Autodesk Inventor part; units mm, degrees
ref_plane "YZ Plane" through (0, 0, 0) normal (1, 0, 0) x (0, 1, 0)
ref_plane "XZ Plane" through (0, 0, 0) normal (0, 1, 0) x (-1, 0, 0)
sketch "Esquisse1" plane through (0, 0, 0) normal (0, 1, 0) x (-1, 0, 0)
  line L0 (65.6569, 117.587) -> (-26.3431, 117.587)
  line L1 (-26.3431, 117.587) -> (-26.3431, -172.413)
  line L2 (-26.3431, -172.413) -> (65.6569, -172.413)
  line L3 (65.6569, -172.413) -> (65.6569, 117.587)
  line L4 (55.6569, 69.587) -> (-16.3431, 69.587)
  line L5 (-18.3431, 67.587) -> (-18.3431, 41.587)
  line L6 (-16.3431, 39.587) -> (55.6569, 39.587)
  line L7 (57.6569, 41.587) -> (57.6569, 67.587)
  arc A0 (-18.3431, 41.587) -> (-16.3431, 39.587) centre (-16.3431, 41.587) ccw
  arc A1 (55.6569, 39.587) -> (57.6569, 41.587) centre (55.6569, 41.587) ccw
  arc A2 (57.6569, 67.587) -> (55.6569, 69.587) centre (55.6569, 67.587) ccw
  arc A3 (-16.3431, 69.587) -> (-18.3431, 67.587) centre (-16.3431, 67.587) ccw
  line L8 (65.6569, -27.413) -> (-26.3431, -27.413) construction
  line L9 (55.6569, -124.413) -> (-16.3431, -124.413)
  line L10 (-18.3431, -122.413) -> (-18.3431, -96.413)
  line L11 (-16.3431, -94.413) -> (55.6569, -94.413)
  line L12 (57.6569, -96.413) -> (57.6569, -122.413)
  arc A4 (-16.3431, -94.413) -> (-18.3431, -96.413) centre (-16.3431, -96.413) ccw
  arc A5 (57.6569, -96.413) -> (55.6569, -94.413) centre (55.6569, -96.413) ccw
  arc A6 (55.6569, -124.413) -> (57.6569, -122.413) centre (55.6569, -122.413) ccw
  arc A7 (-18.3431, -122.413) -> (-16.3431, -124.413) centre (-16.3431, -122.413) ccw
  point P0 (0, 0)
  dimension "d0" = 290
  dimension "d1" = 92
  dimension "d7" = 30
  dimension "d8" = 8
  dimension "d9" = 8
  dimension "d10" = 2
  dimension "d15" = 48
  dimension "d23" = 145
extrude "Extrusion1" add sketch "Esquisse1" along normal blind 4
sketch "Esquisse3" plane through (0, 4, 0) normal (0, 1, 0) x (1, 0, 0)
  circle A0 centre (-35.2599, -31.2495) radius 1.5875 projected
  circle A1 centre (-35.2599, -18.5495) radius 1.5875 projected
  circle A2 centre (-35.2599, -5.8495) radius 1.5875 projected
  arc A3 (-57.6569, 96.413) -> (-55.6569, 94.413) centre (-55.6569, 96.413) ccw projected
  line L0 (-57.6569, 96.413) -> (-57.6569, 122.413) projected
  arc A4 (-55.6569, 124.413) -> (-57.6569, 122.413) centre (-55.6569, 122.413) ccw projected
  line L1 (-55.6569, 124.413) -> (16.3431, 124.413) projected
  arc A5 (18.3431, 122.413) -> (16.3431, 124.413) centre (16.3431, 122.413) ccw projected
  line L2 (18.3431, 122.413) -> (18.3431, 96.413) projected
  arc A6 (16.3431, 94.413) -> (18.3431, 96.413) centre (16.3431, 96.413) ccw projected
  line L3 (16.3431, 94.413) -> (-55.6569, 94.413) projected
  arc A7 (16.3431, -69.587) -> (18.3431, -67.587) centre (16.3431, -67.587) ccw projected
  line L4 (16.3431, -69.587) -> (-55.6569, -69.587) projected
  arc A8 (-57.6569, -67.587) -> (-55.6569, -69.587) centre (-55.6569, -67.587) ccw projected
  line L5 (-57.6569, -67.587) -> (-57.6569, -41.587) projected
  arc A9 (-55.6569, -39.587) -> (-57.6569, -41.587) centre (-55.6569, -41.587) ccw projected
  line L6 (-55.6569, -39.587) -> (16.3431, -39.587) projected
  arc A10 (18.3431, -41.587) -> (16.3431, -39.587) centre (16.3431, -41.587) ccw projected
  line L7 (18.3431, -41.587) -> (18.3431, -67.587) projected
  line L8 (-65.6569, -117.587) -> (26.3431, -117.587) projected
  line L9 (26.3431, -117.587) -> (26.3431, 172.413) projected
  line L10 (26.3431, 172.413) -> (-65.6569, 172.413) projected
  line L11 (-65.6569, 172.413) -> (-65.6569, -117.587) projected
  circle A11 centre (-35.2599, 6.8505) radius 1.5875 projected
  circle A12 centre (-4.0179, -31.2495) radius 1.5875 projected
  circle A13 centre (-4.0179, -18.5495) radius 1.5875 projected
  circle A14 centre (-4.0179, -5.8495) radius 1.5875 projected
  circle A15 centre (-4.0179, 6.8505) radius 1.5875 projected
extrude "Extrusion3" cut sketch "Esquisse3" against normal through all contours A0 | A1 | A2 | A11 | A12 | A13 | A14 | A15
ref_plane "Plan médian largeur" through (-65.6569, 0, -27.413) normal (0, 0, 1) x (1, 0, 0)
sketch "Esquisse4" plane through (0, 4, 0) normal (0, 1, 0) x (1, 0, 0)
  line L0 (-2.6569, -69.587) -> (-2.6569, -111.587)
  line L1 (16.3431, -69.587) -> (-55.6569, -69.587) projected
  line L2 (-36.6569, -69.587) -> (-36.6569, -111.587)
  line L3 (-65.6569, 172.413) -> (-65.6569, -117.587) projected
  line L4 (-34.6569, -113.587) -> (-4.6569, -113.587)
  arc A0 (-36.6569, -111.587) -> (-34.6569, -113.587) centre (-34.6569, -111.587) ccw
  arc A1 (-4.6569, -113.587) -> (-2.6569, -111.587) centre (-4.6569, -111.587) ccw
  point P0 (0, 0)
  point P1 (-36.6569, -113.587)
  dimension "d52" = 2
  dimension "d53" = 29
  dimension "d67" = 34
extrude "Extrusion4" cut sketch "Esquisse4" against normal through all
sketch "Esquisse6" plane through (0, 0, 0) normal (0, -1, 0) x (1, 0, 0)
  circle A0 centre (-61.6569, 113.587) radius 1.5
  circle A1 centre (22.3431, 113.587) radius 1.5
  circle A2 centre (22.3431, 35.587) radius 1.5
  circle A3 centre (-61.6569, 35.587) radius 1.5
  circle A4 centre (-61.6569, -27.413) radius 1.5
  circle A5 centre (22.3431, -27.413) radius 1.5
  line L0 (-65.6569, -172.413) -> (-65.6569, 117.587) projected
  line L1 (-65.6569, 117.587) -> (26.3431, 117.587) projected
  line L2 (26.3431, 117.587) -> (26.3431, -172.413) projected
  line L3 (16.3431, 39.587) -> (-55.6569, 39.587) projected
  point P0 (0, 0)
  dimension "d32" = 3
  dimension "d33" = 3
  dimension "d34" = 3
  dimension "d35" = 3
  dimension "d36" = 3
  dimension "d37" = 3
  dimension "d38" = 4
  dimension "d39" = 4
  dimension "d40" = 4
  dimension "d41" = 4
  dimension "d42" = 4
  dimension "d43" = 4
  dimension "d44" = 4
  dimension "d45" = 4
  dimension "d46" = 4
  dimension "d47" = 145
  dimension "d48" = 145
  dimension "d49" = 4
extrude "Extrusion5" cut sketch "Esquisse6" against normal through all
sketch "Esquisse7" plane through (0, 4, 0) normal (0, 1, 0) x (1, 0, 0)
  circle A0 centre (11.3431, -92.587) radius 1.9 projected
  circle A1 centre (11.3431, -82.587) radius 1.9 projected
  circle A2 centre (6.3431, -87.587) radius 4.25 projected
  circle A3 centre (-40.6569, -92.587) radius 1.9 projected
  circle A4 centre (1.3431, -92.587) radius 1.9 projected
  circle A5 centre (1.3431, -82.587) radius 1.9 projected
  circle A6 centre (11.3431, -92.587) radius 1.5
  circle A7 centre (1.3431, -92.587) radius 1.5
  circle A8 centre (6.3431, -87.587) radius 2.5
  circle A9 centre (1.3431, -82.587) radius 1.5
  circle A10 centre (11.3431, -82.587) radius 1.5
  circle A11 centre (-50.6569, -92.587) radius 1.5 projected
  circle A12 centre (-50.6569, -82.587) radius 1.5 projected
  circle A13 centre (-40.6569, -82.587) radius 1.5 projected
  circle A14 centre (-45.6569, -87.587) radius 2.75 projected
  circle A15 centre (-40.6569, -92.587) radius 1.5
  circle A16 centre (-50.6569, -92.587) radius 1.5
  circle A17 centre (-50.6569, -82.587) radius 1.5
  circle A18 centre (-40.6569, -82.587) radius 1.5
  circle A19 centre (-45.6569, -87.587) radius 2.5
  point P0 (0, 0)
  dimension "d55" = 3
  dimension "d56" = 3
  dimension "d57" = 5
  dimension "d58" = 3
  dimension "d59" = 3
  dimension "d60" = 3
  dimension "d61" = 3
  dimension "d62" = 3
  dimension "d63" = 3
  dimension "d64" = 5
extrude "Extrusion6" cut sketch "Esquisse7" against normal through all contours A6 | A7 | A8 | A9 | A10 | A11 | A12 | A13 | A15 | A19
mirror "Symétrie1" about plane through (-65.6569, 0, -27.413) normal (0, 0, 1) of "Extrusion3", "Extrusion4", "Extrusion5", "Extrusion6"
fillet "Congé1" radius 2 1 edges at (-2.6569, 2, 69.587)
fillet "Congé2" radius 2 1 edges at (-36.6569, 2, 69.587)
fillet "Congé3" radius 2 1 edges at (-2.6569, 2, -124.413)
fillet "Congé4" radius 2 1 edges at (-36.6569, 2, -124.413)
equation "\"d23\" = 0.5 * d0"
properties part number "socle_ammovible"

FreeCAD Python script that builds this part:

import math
import FreeCAD as App
import Part
import Sketcher
from FreeCAD import Vector
Q = App.Units.Quantity


def edges_at(feature, points):
    """Names of the edges that pass closest to the given points."""
    edges = feature.Shape.Edges
    near = lambda p: min(range(len(edges)), key=lambda i: edges[i].distToShape(Part.Vertex(*p))[0])
    return sorted({f"Edge{near(p) + 1}" for p in points})


def add_polygon(sketch, points):
    """Adds a closed chain of lines whose ends are joined by coincident constraints."""
    first, n = sketch.GeometryCount, len(points)
    for a, b in zip(points, points[1:] + points[:1]):
        sketch.addGeometry(Part.LineSegment(App.Vector(*a, 0), App.Vector(*b, 0)), False)
    for i in range(n):
        sketch.addConstraint(Sketcher.Constraint("Coincident", first + i, 2, first + (i + 1) % n, 1))

doc = App.newDocument("Part")
body = doc.addObject("PartDesign::Body", "Body")

sketch1 = body.newObject("Sketcher::SketchObject", "Sketch")
sketch1.AttachmentSupport = (doc.getObject("XZ_Plane"), [""])
sketch1.MapMode = "FlatFace"
add_polygon(sketch1, [(-65.6569, -172.413), (-65.6569, 117.587), (26.3431, 117.587), (26.3431, -172.413)])
sketch1.addGeometry(Part.ArcOfCircle(Part.Circle(Vector(-55.6569, -122.413, 0), Vector(0, 0, 1), 2), math.radians(180), math.radians(270)), False)
sketch1.addGeometry(Part.LineSegment(Vector(-55.6569, -124.413, 0), Vector(16.3431, -124.413, 0)), False)
sketch1.addGeometry(Part.ArcOfCircle(Part.Circle(Vector(16.3431, -122.413, 0), Vector(0, 0, 1), 2), math.radians(-90), math.radians(0)), False)
sketch1.addGeometry(Part.LineSegment(Vector(18.3431, -122.413, 0), Vector(18.3431, -96.413, 0)), False)
sketch1.addGeometry(Part.ArcOfCircle(Part.Circle(Vector(16.3431, -96.413, 0), Vector(0, 0, 1), 2), math.radians(0), math.radians(90)), False)
sketch1.addGeometry(Part.LineSegment(Vector(16.3431, -94.413, 0), Vector(-55.6569, -94.413, 0)), False)
sketch1.addGeometry(Part.ArcOfCircle(Part.Circle(Vector(-55.6569, -96.413, 0), Vector(0, 0, 1), 2), math.radians(90), math.radians(180)), False)
sketch1.addGeometry(Part.LineSegment(Vector(-57.6569, -96.413, 0), Vector(-57.6569, -122.413, 0)), False)
sketch1.addGeometry(Part.LineSegment(Vector(16.3431, 69.587, 0), Vector(-55.6569, 69.587, 0)), False)
sketch1.addGeometry(Part.ArcOfCircle(Part.Circle(Vector(-55.6569, 67.587, 0), Vector(0, 0, 1), 2), math.radians(90), math.radians(180)), False)
sketch1.addGeometry(Part.LineSegment(Vector(-57.6569, 67.587, 0), Vector(-57.6569, 41.587, 0)), False)
sketch1.addGeometry(Part.ArcOfCircle(Part.Circle(Vector(-55.6569, 41.587, 0), Vector(0, 0, 1), 2), math.radians(180), math.radians(270)), False)
sketch1.addGeometry(Part.LineSegment(Vector(-55.6569, 39.587, 0), Vector(16.3431, 39.587, 0)), False)
sketch1.addGeometry(Part.ArcOfCircle(Part.Circle(Vector(16.3431, 41.587, 0), Vector(0, 0, 1), 2), math.radians(-90), math.radians(0)), False)
sketch1.addGeometry(Part.LineSegment(Vector(18.3431, 41.587, 0), Vector(18.3431, 67.587, 0)), False)
sketch1.addGeometry(Part.ArcOfCircle(Part.Circle(Vector(16.3431, 67.587, 0), Vector(0, 0, 1), 2), math.radians(0), math.radians(90)), False)
sketch1.addConstraint(Sketcher.Constraint("Tangent", 4, 2, 5, 1))
sketch1.addConstraint(Sketcher.Constraint("Tangent", 5, 2, 6, 1))
sketch1.addConstraint(Sketcher.Constraint("Tangent", 6, 2, 7, 1))
sketch1.addConstraint(Sketcher.Constraint("Tangent", 7, 2, 8, 1))
sketch1.addConstraint(Sketcher.Constraint("Tangent", 8, 2, 9, 1))
sketch1.addConstraint(Sketcher.Constraint("Tangent", 9, 2, 10, 1))
sketch1.addConstraint(Sketcher.Constraint("Tangent", 10, 2, 11, 1))
sketch1.addConstraint(Sketcher.Constraint("Tangent", 11, 2, 4, 1))
sketch1.addConstraint(Sketcher.Constraint("Tangent", 12, 2, 13, 1))
sketch1.addConstraint(Sketcher.Constraint("Tangent", 13, 2, 14, 1))
sketch1.addConstraint(Sketcher.Constraint("Tangent", 14, 2, 15, 1))
sketch1.addConstraint(Sketcher.Constraint("Tangent", 15, 2, 16, 1))
sketch1.addConstraint(Sketcher.Constraint("Tangent", 16, 2, 17, 1))
sketch1.addConstraint(Sketcher.Constraint("Tangent", 17, 2, 18, 1))
sketch1.addConstraint(Sketcher.Constraint("Tangent", 18, 2, 19, 1))
sketch1.addConstraint(Sketcher.Constraint("Tangent", 19, 2, 12, 1))
sketch1.addConstraint(Sketcher.Constraint("Vertical", 0))
sketch1.addConstraint(Sketcher.Constraint("Horizontal", 1))
sketch1.addConstraint(Sketcher.Constraint("Vertical", 2))
sketch1.addConstraint(Sketcher.Constraint("Horizontal", 3))
sketch1.addConstraint(Sketcher.Constraint("Horizontal", 5))
sketch1.addConstraint(Sketcher.Constraint("Vertical", 7))
sketch1.addConstraint(Sketcher.Constraint("Horizontal", 9))
sketch1.addConstraint(Sketcher.Constraint("Vertical", 11))
sketch1.addConstraint(Sketcher.Constraint("Horizontal", 12))
sketch1.addConstraint(Sketcher.Constraint("Vertical", 14))
sketch1.addConstraint(Sketcher.Constraint("Horizontal", 16))
sketch1.addConstraint(Sketcher.Constraint("Vertical", 18))
sketch1.addConstraint(Sketcher.Constraint("Equal", 4, 6))
sketch1.addConstraint(Sketcher.Constraint("Equal", 6, 8))
sketch1.addConstraint(Sketcher.Constraint("Equal", 8, 10))
sketch1.addConstraint(Sketcher.Constraint("Equal", 10, 13))
sketch1.addConstraint(Sketcher.Constraint("Equal", 13, 15))
sketch1.addConstraint(Sketcher.Constraint("Equal", 15, 17))
sketch1.addConstraint(Sketcher.Constraint("Equal", 17, 19))
sketch1.addConstraint(Sketcher.Constraint("Vertical", 10, 3, 13, 3))
sketch1.addConstraint(Sketcher.Constraint("Vertical", 8, 3, 17, 3))
sketch1.addConstraint(Sketcher.Constraint("Equal", 11, 14))
sketch1.addConstraint(Sketcher.Constraint("Radius", 4, Q("2 mm")))
sketch1.addConstraint(Sketcher.Constraint("DistanceX", 1, 1, 1, 2, Q("92 mm")))
sketch1.addConstraint(Sketcher.Constraint("DistanceY", 0, 1, 0, 2, Q("290 mm")))
sketch1.addConstraint(Sketcher.Constraint("DistanceY", 3, 2, 4, 2, Q("48 mm")))
sketch1.addConstraint(Sketcher.Constraint("DistanceX", 6, 2, 2, 2, Q("8 mm")))
sketch1.addConstraint(Sketcher.Constraint("DistanceY", 5, 2, 8, 2, Q("30 mm")))
sketch1.addConstraint(Sketcher.Constraint("DistanceY", 12, 2, 0, 2, Q("48 mm")))
sketch1.addConstraint(Sketcher.Constraint("DistanceX", 0, 2, 13, 2, Q("8 mm")))
sketch1.addConstraint(Sketcher.Constraint("DistanceX", 4, 3, -1, 1, Q("55.657 mm")))
sketch1.addConstraint(Sketcher.Constraint("DistanceY", 4, 3, -1, 1, Q("122.413 mm")))
pad1 = body.newObject("PartDesign::Pad", "Pad")
pad1.Profile = sketch1
pad1.Length = 4
pad1.Reversed = True

sketch2 = body.newObject("Sketcher::SketchObject", "Sketch001")
sketch2.AttachmentSupport = (doc.getObject("XZ_Plane"), [""])
sketch2.MapMode = "FlatFace"
sketch2.AttachmentOffset = App.Placement(Vector(0, 0, -4), App.Rotation())
sketch2.addGeometry(Part.Circle(Vector(-35.2599, 31.2495, 0), Vector(0, 0, 1), 1.5875), False)
sketch2.addGeometry(Part.Circle(Vector(-35.2599, 18.5495, 0), Vector(0, 0, 1), 1.5875), False)
sketch2.addGeometry(Part.Circle(Vector(-35.2599, 5.8495, 0), Vector(0, 0, 1), 1.5875), False)
sketch2.addGeometry(Part.Circle(Vector(-35.2599, -6.8505, 0), Vector(0, 0, 1), 1.5875), False)
sketch2.addGeometry(Part.Circle(Vector(-4.0179, 31.2495, 0), Vector(0, 0, 1), 1.5875), False)
sketch2.addGeometry(Part.Circle(Vector(-4.0179, 18.5495, 0), Vector(0, 0, 1), 1.5875), False)
sketch2.addGeometry(Part.Circle(Vector(-4.0179, 5.8495, 0), Vector(0, 0, 1), 1.5875), False)
sketch2.addGeometry(Part.Circle(Vector(-4.0179, -6.8505, 0), Vector(0, 0, 1), 1.5875), False)
sketch2.addConstraint(Sketcher.Constraint("Equal", 0, 1))
sketch2.addConstraint(Sketcher.Constraint("Equal", 1, 2))
sketch2.addConstraint(Sketcher.Constraint("Equal", 2, 3))
sketch2.addConstraint(Sketcher.Constraint("Equal", 3, 4))
sketch2.addConstraint(Sketcher.Constraint("Equal", 4, 5))
sketch2.addConstraint(Sketcher.Constraint("Equal", 5, 6))
sketch2.addConstraint(Sketcher.Constraint("Equal", 6, 7))
sketch2.addConstraint(Sketcher.Constraint("Horizontal", 0, 3, 4, 3))
sketch2.addConstraint(Sketcher.Constraint("Horizontal", 1, 3, 5, 3))
sketch2.addConstraint(Sketcher.Constraint("Horizontal", 2, 3, 6, 3))
sketch2.addConstraint(Sketcher.Constraint("Horizontal", 3, 3, 7, 3))
sketch2.addConstraint(Sketcher.Constraint("Vertical", 0, 3, 1, 3))
sketch2.addConstraint(Sketcher.Constraint("Vertical", 1, 3, 2, 3))
sketch2.addConstraint(Sketcher.Constraint("Vertical", 2, 3, 3, 3))
sketch2.addConstraint(Sketcher.Constraint("Vertical", 4, 3, 5, 3))
sketch2.addConstraint(Sketcher.Constraint("Vertical", 5, 3, 6, 3))
sketch2.addConstraint(Sketcher.Constraint("Vertical", 6, 3, 7, 3))
sketch2.addConstraint(Sketcher.Constraint("Diameter", 0, Q("3.175 mm")))
sketch2.addConstraint(Sketcher.Constraint("DistanceY", 1, 3, 0, 3, Q("12.7 mm")))
sketch2.addConstraint(Sketcher.Constraint("DistanceY", 2, 3, 1, 3, Q("12.7 mm")))
sketch2.addConstraint(Sketcher.Constraint("DistanceY", 3, 3, 2, 3, Q("12.7 mm")))
sketch2.addConstraint(Sketcher.Constraint("DistanceX", 0, 3, -1, 1, Q("35.26 mm")))
sketch2.addConstraint(Sketcher.Constraint("DistanceX", 4, 3, -1, 1, Q("4.018 mm")))
sketch2.addConstraint(Sketcher.Constraint("DistanceY", -1, 1, 0, 3, Q("31.2495 mm")))
pocket1 = body.newObject("PartDesign::Pocket", "Pocket")
pocket1.Profile = sketch2
pocket1.Type = "ThroughAll"
pocket1.Reversed = True

sketch3 = body.newObject("Sketcher::SketchObject", "Sketch002")
sketch3.AttachmentSupport = (doc.getObject("XZ_Plane"), [""])
sketch3.MapMode = "FlatFace"
sketch3.AttachmentOffset = App.Placement(Vector(0, 0, -4), App.Rotation())
sketch3.addGeometry(Part.LineSegment(Vector(-2.6569, 111.587, 0), Vector(-2.6569, 69.587, 0)), False)
sketch3.addGeometry(Part.LineSegment(Vector(-2.6569, 69.587, 0), Vector(-36.6569, 69.587, 0)), False)
sketch3.addGeometry(Part.LineSegment(Vector(-36.6569, 69.587, 0), Vector(-36.6569, 111.587, 0)), False)
sketch3.addGeometry(Part.ArcOfCircle(Part.Circle(Vector(-34.6569, 111.587, 0), Vector(0, 0, 1), 2), math.radians(90), math.radians(180)), False)
sketch3.addGeometry(Part.LineSegment(Vector(-34.6569, 113.587, 0), Vector(-4.6569, 113.587, 0)), False)
sketch3.addGeometry(Part.ArcOfCircle(Part.Circle(Vector(-4.6569, 111.587, 0), Vector(0, 0, 1), 2), math.radians(0), math.radians(90)), False)
sketch3.addConstraint(Sketcher.Constraint("Coincident", 0, 2, 1, 1))
sketch3.addConstraint(Sketcher.Constraint("Coincident", 1, 2, 2, 1))
sketch3.addConstraint(Sketcher.Constraint("Tangent", 2, 2, 3, 2))
sketch3.addConstraint(Sketcher.Constraint("Tangent", 3, 1, 4, 1))
sketch3.addConstraint(Sketcher.Constraint("Tangent", 4, 2, 5, 2))
sketch3.addConstraint(Sketcher.Constraint("Tangent", 5, 1, 0, 1))
sketch3.addConstraint(Sketcher.Constraint("Vertical", 0))
sketch3.addConstraint(Sketcher.Constraint("Horizontal", 1))
sketch3.addConstraint(Sketcher.Constraint("Vertical", 2))
sketch3.addConstraint(Sketcher.Constraint("Horizontal", 4))
sketch3.addConstraint(Sketcher.Constraint("Equal", 3, 5))
sketch3.addConstraint(Sketcher.Constraint("Radius", 3, Q("2 mm")))
sketch3.addConstraint(Sketcher.Constraint("DistanceX", 1, 2, 1, 1, Q("34 mm")))
sketch3.addConstraint(Sketcher.Constraint("DistanceY", 0, 2, 0, 1, Q("42 mm")))
sketch3.addConstraint(Sketcher.Constraint("DistanceX", 3, 3, -1, 1, Q("34.657 mm")))
sketch3.addConstraint(Sketcher.Constraint("DistanceY", -1, 1, 3, 3, Q("111.587 mm")))
pocket2 = body.newObject("PartDesign::Pocket", "Pocket001")
pocket2.Profile = sketch3
pocket2.Type = "ThroughAll"
pocket2.Reversed = True

sketch4 = body.newObject("Sketcher::SketchObject", "Sketch003")
sketch4.AttachmentSupport = (doc.getObject("XZ_Plane"), [""])
sketch4.MapMode = "FlatFace"
sketch4.addGeometry(Part.Circle(Vector(-61.6569, 113.587, 0), Vector(0, 0, 1), 1.5), False)
sketch4.addGeometry(Part.Circle(Vector(22.3431, 113.587, 0), Vector(0, 0, 1), 1.5), False)
sketch4.addGeometry(Part.Circle(Vector(22.3431, 35.587, 0), Vector(0, 0, 1), 1.5), False)
sketch4.addGeometry(Part.Circle(Vector(-61.6569, 35.587, 0), Vector(0, 0, 1), 1.5), False)
sketch4.addGeometry(Part.Circle(Vector(-61.6569, -27.413, 0), Vector(0, 0, 1), 1.5), False)
sketch4.addGeometry(Part.Circle(Vector(22.3431, -27.413, 0), Vector(0, 0, 1), 1.5), False)
sketch4.addConstraint(Sketcher.Constraint("Equal", 0, 1))
sketch4.addConstraint(Sketcher.Constraint("Equal", 1, 2))
sketch4.addConstraint(Sketcher.Constraint("Equal", 2, 3))
sketch4.addConstraint(Sketcher.Constraint("Equal", 3, 4))
sketch4.addConstraint(Sketcher.Constraint("Equal", 4, 5))
sketch4.addConstraint(Sketcher.Constraint("Horizontal", 0, 3, 1, 3))
sketch4.addConstraint(Sketcher.Constraint("Horizontal", 2, 3, 3, 3))
sketch4.addConstraint(Sketcher.Constraint("Horizontal", 4, 3, 5, 3))
sketch4.addConstraint(Sketcher.Constraint("Vertical", 1, 3, 2, 3))
sketch4.addConstraint(Sketcher.Constraint("Vertical", 0, 3, 3, 3))
sketch4.addConstraint(Sketcher.Constraint("Vertical", 3, 3, 4, 3))
sketch4.addConstraint(Sketcher.Constraint("Vertical", 2, 3, 5, 3))
sketch4.addConstraint(Sketcher.Constraint("Diameter", 0, Q("3 mm")))
sketch4.addConstraint(Sketcher.Constraint("DistanceX", 0, 3, 1, 3, Q("84 mm")))
sketch4.addConstraint(Sketcher.Constraint("DistanceY", 2, 3, 1, 3, Q("78 mm")))
sketch4.addConstraint(Sketcher.Constraint("DistanceY", 4, 3, 3, 3, Q("63 mm")))
sketch4.addConstraint(Sketcher.Constraint("DistanceX", 0, 3, -1, 1, Q("61.657 mm")))
sketch4.addConstraint(Sketcher.Constraint("DistanceY", -1, 1, 0, 3, Q("113.587 mm")))
pocket3 = body.newObject("PartDesign::Pocket", "Pocket002")
pocket3.Profile = sketch4
pocket3.Type = "ThroughAll"

sketch5 = body.newObject("Sketcher::SketchObject", "Sketch004")
sketch5.AttachmentSupport = (doc.getObject("XZ_Plane"), [""])
sketch5.MapMode = "FlatFace"
sketch5.AttachmentOffset = App.Placement(Vector(0, 0, -4), App.Rotation())
sketch5.addGeometry(Part.Circle(Vector(11.3431, 92.587, 0), Vector(0, 0, 1), 1.5), False)
sketch5.addGeometry(Part.Circle(Vector(1.3431, 92.587, 0), Vector(0, 0, 1), 1.5), False)
sketch5.addGeometry(Part.Circle(Vector(6.3431, 87.587, 0), Vector(0, 0, 1), 2.5), False)
sketch5.addGeometry(Part.Circle(Vector(1.3431, 82.587, 0), Vector(0, 0, 1), 1.5), False)
sketch5.addGeometry(Part.Circle(Vector(11.3431, 82.587, 0), Vector(0, 0, 1), 1.5), False)
sketch5.addGeometry(Part.Circle(Vector(-50.6569, 92.587, 0), Vector(0, 0, 1), 1.5), False)
sketch5.addGeometry(Part.Circle(Vector(-50.6569, 82.587, 0), Vector(0, 0, 1), 1.5), False)
sketch5.addGeometry(Part.Circle(Vector(-40.6569, 82.587, 0), Vector(0, 0, 1), 1.5), False)
sketch5.addGeometry(Part.Circle(Vector(-40.6569, 92.587, 0), Vector(0, 0, 1), 1.5), False)
sketch5.addGeometry(Part.Circle(Vector(-45.6569, 87.587, 0), Vector(0, 0, 1), 2.5), False)
sketch5.addConstraint(Sketcher.Constraint("Equal", 0, 1))
sketch5.addConstraint(Sketcher.Constraint("Equal", 1, 3))
sketch5.addConstraint(Sketcher.Constraint("Equal", 3, 4))
sketch5.addConstraint(Sketcher.Constraint("Equal", 4, 5))
sketch5.addConstraint(Sketcher.Constraint("Equal", 5, 6))
sketch5.addConstraint(Sketcher.Constraint("Equal", 6, 7))
sketch5.addConstraint(Sketcher.Constraint("Equal", 7, 8))
sketch5.addConstraint(Sketcher.Constraint("Equal", 2, 9))
sketch5.addConstraint(Sketcher.Constraint("Horizontal", 0, 3, 1, 3))
sketch5.addConstraint(Sketcher.Constraint("Horizontal", 3, 3, 4, 3))
sketch5.addConstraint(Sketcher.Constraint("Horizontal", 1, 3, 5, 3))
sketch5.addConstraint(Sketcher.Constraint("Horizontal", 4, 3, 6, 3))
sketch5.addConstraint(Sketcher.Constraint("Horizontal", 6, 3, 7, 3))
sketch5.addConstraint(Sketcher.Constraint("Horizontal", 5, 3, 8, 3))
sketch5.addConstraint(Sketcher.Constraint("Horizontal", 2, 3, 9, 3))
sketch5.addConstraint(Sketcher.Constraint("Vertical", 1, 3, 3, 3))
sketch5.addConstraint(Sketcher.Constraint("Vertical", 0, 3, 4, 3))
sketch5.addConstraint(Sketcher.Constraint("Vertical", 5, 3, 6, 3))
sketch5.addConstraint(Sketcher.Constraint("Vertical", 7, 3, 8, 3))
sketch5.addConstraint(Sketcher.Constraint("Diameter", 0, Q("3 mm")))
sketch5.addConstraint(Sketcher.Constraint("Diameter", 2, Q("5 mm")))
sketch5.addConstraint(Sketcher.Constraint("DistanceX", 2, 3, 0, 3, Q("5 mm")))
sketch5.addConstraint(Sketcher.Constraint("DistanceY", 2, 3, 0, 3, Q("5 mm")))
sketch5.addConstraint(Sketcher.Constraint("DistanceX", 1, 3, 2, 3, Q("5 mm")))
sketch5.addConstraint(Sketcher.Constraint("DistanceY", 3, 3, 2, 3, Q("5 mm")))
sketch5.addConstraint(Sketcher.Constraint("DistanceX", 5, 3, 9, 3, Q("5 mm")))
sketch5.addConstraint(Sketcher.Constraint("DistanceX", 9, 3, 7, 3, Q("5 mm")))
sketch5.addConstraint(Sketcher.Constraint("DistanceX", 5, 3, 1, 3, Q("52 mm")))
sketch5.addConstraint(Sketcher.Constraint("DistanceX", -1, 1, 0, 3, Q("11.343 mm")))
sketch5.addConstraint(Sketcher.Constraint("DistanceY", -1, 1, 0, 3, Q("92.587 mm")))
pocket4 = body.newObject("PartDesign::Pocket", "Pocket003")
pocket4.Profile = sketch5
pocket4.Type = "ThroughAll"
pocket4.Reversed = True
doc.recompute()

datumplane = body.newObject("PartDesign::Plane", "DatumPlane")
datumplane.AttachmentSupport = (doc.getObject("XY_Plane"), [""])
datumplane.MapMode = "FlatFace"
datumplane.AttachmentOffset = App.Placement(Vector(0, 0, -27.413), App.Rotation())
mirrored = body.newObject("PartDesign::Mirrored", "Mirrored")
mirrored.Originals = [pocket1, pocket2, pocket3, pocket4]
mirrored.MirrorPlane = (datumplane, [""])
body.Tip = mirrored
doc.recompute()

fillet = body.newObject("PartDesign::Fillet", "Fillet")
fillet.Base = (mirrored, edges_at(mirrored, [(-2.657, 2, 69.587)]))
fillet.Radius = 2
doc.recompute()

fillet2 = body.newObject("PartDesign::Fillet", "Fillet001")
fillet2.Base = (fillet, edges_at(fillet, [(-36.657, 2, 69.587)]))
fillet2.Radius = 2
doc.recompute()

fillet3 = body.newObject("PartDesign::Fillet", "Fillet002")
fillet3.Base = (fillet2, edges_at(fillet2, [(-2.657, 2, -124.413)]))
fillet3.Radius = 2
doc.recompute()

fillet4 = body.newObject("PartDesign::Fillet", "Fillet003")
fillet4.Base = (fillet3, edges_at(fillet3, [(-36.657, 2, -124.413)]))
fillet4.Radius = 2

doc.recompute()
